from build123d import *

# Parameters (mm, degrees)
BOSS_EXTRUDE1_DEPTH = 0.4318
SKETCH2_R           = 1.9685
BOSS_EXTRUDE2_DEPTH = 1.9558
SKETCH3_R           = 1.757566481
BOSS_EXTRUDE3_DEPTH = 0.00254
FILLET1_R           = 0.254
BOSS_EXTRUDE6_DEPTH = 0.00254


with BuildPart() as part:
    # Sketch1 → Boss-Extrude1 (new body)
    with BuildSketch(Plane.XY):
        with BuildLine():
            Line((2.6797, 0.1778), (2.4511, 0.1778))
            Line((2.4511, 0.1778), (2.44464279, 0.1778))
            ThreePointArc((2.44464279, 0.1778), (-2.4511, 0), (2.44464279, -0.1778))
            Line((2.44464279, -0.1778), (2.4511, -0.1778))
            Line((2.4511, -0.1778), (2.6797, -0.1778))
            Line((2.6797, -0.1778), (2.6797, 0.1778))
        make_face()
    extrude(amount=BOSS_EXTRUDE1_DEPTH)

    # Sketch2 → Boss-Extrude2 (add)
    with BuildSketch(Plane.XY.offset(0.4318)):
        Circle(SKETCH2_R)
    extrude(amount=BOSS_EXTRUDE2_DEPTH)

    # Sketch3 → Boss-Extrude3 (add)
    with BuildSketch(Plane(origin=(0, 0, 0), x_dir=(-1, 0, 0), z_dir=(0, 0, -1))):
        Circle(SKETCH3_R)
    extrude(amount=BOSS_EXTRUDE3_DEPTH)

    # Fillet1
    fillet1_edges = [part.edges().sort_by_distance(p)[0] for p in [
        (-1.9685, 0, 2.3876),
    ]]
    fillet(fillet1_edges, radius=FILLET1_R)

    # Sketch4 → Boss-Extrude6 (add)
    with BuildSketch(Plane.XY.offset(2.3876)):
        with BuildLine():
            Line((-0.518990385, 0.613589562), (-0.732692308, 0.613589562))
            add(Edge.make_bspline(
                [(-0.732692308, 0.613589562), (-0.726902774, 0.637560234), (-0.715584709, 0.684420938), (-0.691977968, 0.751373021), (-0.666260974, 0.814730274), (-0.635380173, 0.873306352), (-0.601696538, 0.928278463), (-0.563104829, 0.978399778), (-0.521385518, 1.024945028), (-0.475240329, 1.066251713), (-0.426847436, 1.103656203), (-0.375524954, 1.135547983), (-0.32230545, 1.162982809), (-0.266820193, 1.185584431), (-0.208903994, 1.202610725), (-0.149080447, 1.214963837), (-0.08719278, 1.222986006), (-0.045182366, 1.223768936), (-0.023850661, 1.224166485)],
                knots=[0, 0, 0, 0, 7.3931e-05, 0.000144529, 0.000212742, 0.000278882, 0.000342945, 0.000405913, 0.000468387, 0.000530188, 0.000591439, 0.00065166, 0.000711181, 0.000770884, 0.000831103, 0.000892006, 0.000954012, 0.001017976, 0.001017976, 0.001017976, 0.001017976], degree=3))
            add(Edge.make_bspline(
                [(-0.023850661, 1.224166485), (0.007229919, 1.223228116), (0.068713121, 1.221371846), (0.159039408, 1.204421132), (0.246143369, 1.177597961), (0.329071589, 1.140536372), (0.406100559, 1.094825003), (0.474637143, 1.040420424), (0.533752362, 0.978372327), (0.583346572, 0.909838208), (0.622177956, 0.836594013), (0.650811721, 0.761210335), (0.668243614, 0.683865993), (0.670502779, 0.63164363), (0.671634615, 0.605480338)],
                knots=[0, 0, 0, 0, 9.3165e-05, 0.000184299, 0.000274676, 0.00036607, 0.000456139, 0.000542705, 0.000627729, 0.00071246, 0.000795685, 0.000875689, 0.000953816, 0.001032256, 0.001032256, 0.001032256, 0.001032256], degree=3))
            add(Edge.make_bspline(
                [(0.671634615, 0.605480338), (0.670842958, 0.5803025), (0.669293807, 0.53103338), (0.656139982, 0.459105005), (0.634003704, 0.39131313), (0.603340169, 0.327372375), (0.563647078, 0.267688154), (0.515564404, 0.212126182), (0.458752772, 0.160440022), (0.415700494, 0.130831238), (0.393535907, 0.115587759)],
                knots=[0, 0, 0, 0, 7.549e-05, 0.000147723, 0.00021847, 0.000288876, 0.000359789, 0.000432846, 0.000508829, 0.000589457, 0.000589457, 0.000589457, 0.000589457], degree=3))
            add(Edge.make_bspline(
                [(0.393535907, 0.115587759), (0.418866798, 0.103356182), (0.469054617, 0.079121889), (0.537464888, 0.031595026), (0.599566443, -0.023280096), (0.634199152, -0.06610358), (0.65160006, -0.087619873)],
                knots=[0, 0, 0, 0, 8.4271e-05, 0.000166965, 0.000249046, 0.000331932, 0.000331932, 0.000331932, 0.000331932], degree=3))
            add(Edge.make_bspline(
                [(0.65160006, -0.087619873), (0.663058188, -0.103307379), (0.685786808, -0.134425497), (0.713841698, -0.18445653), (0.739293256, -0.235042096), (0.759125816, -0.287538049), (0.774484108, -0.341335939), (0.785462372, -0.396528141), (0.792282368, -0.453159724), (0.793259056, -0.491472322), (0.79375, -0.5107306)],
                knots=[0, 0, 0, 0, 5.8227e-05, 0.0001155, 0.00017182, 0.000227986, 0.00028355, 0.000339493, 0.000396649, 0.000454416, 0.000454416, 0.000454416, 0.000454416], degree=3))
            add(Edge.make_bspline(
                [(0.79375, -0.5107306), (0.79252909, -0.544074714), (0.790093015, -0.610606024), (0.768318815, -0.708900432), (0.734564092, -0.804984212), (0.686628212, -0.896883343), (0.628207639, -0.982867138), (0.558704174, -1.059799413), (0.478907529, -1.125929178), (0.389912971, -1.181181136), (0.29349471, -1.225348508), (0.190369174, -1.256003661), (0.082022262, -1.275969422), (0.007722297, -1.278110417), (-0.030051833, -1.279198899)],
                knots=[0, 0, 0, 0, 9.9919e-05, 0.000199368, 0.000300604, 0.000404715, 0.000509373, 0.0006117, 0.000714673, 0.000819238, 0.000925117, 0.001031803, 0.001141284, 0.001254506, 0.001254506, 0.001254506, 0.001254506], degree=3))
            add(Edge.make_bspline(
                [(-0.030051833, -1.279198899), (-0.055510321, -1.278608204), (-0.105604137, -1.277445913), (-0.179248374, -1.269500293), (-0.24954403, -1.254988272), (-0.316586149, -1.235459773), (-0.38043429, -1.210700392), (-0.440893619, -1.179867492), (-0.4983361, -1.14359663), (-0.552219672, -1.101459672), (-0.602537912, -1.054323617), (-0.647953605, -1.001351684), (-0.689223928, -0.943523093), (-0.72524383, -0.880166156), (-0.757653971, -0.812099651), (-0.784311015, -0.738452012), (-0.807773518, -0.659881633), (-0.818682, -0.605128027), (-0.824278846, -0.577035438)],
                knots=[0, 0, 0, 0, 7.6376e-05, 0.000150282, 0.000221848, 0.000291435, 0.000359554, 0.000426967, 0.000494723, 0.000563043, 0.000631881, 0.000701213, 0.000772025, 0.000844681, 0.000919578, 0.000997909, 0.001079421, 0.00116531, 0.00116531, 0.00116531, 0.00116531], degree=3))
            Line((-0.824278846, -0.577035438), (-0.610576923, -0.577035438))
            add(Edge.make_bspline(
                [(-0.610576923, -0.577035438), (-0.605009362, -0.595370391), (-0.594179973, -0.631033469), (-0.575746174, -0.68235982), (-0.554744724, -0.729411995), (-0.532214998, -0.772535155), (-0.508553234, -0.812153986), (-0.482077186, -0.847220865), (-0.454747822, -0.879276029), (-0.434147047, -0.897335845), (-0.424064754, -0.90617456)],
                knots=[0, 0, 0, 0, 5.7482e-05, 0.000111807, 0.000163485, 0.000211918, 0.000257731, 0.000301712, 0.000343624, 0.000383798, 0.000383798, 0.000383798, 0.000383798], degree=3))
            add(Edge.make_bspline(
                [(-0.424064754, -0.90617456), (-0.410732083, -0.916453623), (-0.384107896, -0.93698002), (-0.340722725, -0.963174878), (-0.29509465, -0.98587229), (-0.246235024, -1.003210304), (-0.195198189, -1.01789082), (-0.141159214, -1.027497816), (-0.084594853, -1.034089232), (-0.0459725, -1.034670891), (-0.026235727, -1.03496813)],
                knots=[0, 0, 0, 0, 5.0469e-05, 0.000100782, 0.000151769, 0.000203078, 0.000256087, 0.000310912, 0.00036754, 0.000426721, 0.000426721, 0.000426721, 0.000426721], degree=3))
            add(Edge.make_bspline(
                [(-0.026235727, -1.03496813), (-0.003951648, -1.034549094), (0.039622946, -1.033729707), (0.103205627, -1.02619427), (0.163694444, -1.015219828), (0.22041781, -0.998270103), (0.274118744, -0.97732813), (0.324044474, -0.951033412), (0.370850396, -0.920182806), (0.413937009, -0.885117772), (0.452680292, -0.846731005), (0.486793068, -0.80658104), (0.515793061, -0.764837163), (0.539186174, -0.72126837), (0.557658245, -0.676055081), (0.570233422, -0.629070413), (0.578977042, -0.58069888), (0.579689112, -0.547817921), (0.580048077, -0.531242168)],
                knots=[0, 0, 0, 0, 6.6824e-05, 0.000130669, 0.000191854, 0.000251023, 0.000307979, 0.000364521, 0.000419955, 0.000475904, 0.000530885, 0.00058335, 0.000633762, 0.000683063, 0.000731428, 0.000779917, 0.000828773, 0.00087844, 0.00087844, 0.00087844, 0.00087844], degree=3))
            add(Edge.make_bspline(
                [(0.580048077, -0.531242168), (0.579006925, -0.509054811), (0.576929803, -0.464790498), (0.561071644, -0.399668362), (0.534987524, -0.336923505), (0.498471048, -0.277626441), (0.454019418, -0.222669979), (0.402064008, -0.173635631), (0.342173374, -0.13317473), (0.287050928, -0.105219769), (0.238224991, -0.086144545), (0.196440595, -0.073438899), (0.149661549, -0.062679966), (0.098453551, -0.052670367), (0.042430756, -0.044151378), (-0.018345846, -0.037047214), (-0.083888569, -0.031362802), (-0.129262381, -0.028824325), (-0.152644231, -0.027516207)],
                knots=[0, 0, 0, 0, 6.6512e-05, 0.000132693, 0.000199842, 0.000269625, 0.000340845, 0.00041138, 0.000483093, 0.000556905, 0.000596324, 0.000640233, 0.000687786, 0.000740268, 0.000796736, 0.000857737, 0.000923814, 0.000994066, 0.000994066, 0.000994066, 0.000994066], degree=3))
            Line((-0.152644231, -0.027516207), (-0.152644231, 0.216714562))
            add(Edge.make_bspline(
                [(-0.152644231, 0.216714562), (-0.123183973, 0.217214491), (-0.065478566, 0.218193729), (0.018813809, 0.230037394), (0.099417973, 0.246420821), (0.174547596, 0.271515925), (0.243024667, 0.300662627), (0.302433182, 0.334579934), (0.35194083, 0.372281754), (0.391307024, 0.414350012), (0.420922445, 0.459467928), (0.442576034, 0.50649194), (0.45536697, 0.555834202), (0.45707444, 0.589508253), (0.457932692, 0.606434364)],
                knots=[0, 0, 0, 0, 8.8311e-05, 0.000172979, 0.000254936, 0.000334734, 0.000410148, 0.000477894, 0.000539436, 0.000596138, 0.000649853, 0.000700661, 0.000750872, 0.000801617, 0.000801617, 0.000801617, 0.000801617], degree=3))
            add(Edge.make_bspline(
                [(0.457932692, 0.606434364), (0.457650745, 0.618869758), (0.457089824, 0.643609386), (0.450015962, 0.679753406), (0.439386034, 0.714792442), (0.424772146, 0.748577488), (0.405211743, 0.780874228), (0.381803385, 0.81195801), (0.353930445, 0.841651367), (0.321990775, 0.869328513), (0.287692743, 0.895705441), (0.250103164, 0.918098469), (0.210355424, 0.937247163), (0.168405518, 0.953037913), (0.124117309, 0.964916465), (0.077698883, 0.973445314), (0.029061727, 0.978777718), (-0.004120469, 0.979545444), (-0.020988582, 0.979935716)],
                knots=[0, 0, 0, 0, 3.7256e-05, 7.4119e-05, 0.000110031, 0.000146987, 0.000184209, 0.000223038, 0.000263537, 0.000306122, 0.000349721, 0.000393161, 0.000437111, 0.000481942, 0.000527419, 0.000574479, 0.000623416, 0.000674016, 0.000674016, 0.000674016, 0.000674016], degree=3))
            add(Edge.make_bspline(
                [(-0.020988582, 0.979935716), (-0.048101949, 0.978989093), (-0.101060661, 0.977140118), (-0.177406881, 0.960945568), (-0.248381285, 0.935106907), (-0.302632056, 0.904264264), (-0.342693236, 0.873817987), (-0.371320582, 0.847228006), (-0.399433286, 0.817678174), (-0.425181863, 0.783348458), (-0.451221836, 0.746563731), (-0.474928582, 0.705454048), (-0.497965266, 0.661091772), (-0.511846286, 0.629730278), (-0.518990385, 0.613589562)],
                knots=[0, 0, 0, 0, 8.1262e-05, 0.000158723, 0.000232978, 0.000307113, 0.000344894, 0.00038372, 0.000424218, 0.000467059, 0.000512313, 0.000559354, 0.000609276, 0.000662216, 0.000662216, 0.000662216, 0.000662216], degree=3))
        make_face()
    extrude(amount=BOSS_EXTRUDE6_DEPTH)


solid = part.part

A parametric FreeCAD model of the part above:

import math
import FreeCAD as App
import Part
import Sketcher

V = App.Vector
Q = App.Units.Quantity


def edges_at(feature, points):
    """Names of the edges that pass closest to the given points."""
    edges = feature.Shape.Edges
    near = lambda p: min(range(len(edges)), key=lambda i: edges[i].distToShape(Part.Vertex(*p))[0])
    return sorted({f"Edge{near(p) + 1}" for p in points})

doc = App.newDocument("Part")
params = doc.addObject("Spreadsheet::Sheet", "Params")
for row, (alias, value) in enumerate([
    ("sketch1_height", "0.014 in"),
    ("pad1_length", "0.017 in"),
    ("sketch2_diameter", "0.155 in"),
    ("pad2_length", "0.077 in"),
    ("pad3_length", "0.0001 in"),
    ("fillet_radius", "0.01 in"),
    ("pad4_length", "0.0001 in"),
], start=1):
    params.set(f"A{row}", alias)
    params.set(f"B{row}", "=" + value)
    params.setAlias(f"B{row}", alias)

body = doc.addObject("PartDesign::Body", "Body")

# Sketch on XY plane
sketch1 = body.newObject("Sketcher::SketchObject", "Sketch")
sketch1.AttachmentSupport = (doc.getObject("XY_Plane"), [""])
sketch1.MapMode = "FlatFace"
sketch1.addGeometry([
    Part.LineSegment(V(2.68, 0.18, 0), V(2.44, 0.18, 0)),
    Part.ArcOfCircle(Part.Circle(V(0, 0, 0), V(0, 0, 1), 2.45), math.radians(4), math.radians(356)),
    Part.LineSegment(V(2.44, -0.18, 0), V(2.68, -0.18, 0)),
    Part.LineSegment(V(2.68, -0.18, 0), V(2.68, 0.18, 0)),
], False)
sketch1.addConstraint([
    Sketcher.Constraint("Coincident", 0, 2, 1, 1),
    Sketcher.Constraint("Coincident", 1, 2, 2, 1),
    Sketcher.Constraint("Coincident", 2, 2, 3, 1),
    Sketcher.Constraint("Coincident", 3, 2, 0, 1),
    Sketcher.Constraint("Horizontal", 0),
    Sketcher.Constraint("Horizontal", 2),
    Sketcher.Constraint("Vertical", 3),
    Sketcher.Constraint("Coincident", 1, 3, -1, 1),
    Sketcher.Constraint("Vertical", 0, 2, 1, 2),
    Sketcher.Constraint("Radius", 1, Q("0.0965 in")),
    Sketcher.Constraint("DistanceY", 3, 1, 3, 2, Q("0.014 in")),
    Sketcher.Constraint("DistanceX", -1, 1, 2, 2, Q("0.1055 in")),
])
sketch1.setExpression("Constraints[10]", "Params.sketch1_height")
pad1 = body.newObject("PartDesign::Pad", "Pad")
pad1.Profile = sketch1
pad1.setExpression("Length", "Params.pad1_length")

# Sketch on XY plane
sketch2 = body.newObject("Sketcher::SketchObject", "Sketch001")
sketch2.AttachmentSupport = (doc.getObject("XY_Plane"), [""])
sketch2.MapMode = "FlatFace"
sketch2.AttachmentOffset = App.Placement(V(0, 0, 0.017 * 25.4), App.Rotation())
sketch2.addGeometry(Part.Circle(V(0, 0, 0), V(0, 0, 1), 2), False)
sketch2.addConstraint([
    Sketcher.Constraint("Coincident", 0, 3, -1, 1),
    Sketcher.Constraint("Diameter", 0, Q("0.155 in")),
])
sketch2.setExpression("Constraints[1]", "Params.sketch2_diameter")
pad2 = body.newObject("PartDesign::Pad", "Pad001")
pad2.Profile = sketch2
pad2.setExpression("Length", "Params.pad2_length")

# Sketch on XY plane
sketch3 = body.newObject("Sketcher::SketchObject", "Sketch002")
sketch3.AttachmentSupport = (doc.getObject("XY_Plane"), [""])
sketch3.MapMode = "FlatFace"
sketch3.addGeometry(Part.Circle(V(0, 0, 0), V(0, 0, 1), 1.8), False)
sketch3.addConstraint([
    Sketcher.Constraint("Coincident", 0, 3, -1, 1),
    Sketcher.Constraint("Diameter", 0, Q("3.515133 mm")),
])
pad3 = body.newObject("PartDesign::Pad", "Pad002")
pad3.Profile = sketch3
pad3.setExpression("Length", "Params.pad3_length")
pad3.Reversed = True
doc.recompute()

fillet = body.newObject("PartDesign::Fillet", "Fillet")
fillet.Base = (pad3, edges_at(pad3, [(-1.968, 0, 2.388)]))
fillet.setExpression("Radius", "Params.fillet_radius")

# Sketch on XY plane
sketch4 = body.newObject("Sketcher::SketchObject", "Sketch003")
sketch4.AttachmentSupport = (doc.getObject("XY_Plane"), [""])
sketch4.MapMode = "FlatFace"
sketch4.AttachmentOffset = App.Placement(V(0, 0, 0.094 * 25.4), App.Rotation())
sketch4.addGeometry([
    Part.LineSegment(V(-0.732692, 0.61359, 0), V(-0.51899, 0.61359, 0)),  # 0
    Part.BSplineCurve([V(-0.020989, 0.979936, 0), V(-0.048102, 0.978989, 0), V(-0.101061, 0.97714, 0), V(-0.177407, 0.960946, 0), V(-0.248381, 0.935107, 0), V(-0.302632, 0.904264, 0), V(-0.342693, 0.873818, 0), V(-0.371321, 0.847228, 0), V(-0.399433, 0.817678, 0), V(-0.425182, 0.783348, 0), V(-0.451222, 0.746564, 0), V(-0.474929, 0.705454, 0), V(-0.497965, 0.661092, 0), V(-0.511846, 0.62973, 0), V(-0.51899, 0.61359, 0)], [4, 1, 1, 1, 1, 1, 1, 1, 1, 1, 1, 1, 4], [0, 0.000081262, 0.000158723, 0.000232978, 0.000307113, 0.000344894, 0.00038372, 0.000424218, 0.000467059, 0.000512313, 0.000559354, 0.000609276, 0.000662216], False, 3, [1, 1, 1, 1, 1, 1, 1, 1, 1, 1, 1, 1, 1, 1, 1], False),  # 1
    Part.BSplineCurve([V(0.457933, 0.606434, 0), V(0.457651, 0.61887, 0), V(0.45709, 0.643609, 0), V(0.450016, 0.679753, 0), V(0.439386, 0.714792, 0), V(0.424772, 0.748577, 0), V(0.405212, 0.780874, 0), V(0.381803, 0.811958, 0), V(0.35393, 0.841651, 0), V(0.321991, 0.869329, 0), V(0.287693, 0.895705, 0), V(0.250103, 0.918098, 0), V(0.210355, 0.937247, 0), V(0.168406, 0.953038, 0), V(0.124117, 0.964916, 0), V(0.077699, 0.973445, 0), V(0.029062, 0.978778, 0), V(-0.00412, 0.979545, 0), V(-0.020989, 0.979936, 0)], [4, 1, 1, 1, 1, 1, 1, 1, 1, 1, 1, 1, 1, 1, 1, 1, 4], [0, 0.000037256, 0.000074119, 0.000110031, 0.000146987, 0.000184209, 0.000223038, 0.000263537, 0.000306122, 0.000349721, 0.000393161, 0.000437111, 0.000481942, 0.000527419, 0.000574479, 0.000623416, 0.000674016], False, 3, [1, 1, 1, 1, 1, 1, 1, 1, 1, 1, 1, 1, 1, 1, 1, 1, 1, 1, 1], False),  # 2
    Part.BSplineCurve([V(-0.152644, 0.216715, 0), V(-0.123184, 0.217214, 0), V(-0.065479, 0.218194, 0), V(0.018814, 0.230037, 0), V(0.099418, 0.246421, 0), V(0.174548, 0.271516, 0), V(0.243025, 0.300663, 0), V(0.302433, 0.33458, 0), V(0.351941, 0.372282, 0), V(0.391307, 0.41435, 0), V(0.420922, 0.459468, 0), V(0.442576, 0.506492, 0), V(0.455367, 0.555834, 0), V(0.457074, 0.589508, 0), V(0.457933, 0.606434, 0)], [4, 1, 1, 1, 1, 1, 1, 1, 1, 1, 1, 1, 4], [0, 0.000088311, 0.000172979, 0.000254936, 0.000334734, 0.000410148, 0.000477894, 0.000539436, 0.000596138, 0.000649853, 0.000700661, 0.000750872, 0.000801617], False, 3, [1, 1, 1, 1, 1, 1, 1, 1, 1, 1, 1, 1, 1, 1, 1], False),  # 3
    Part.LineSegment(V(-0.152644, 0.216715, 0), V(-0.152644, -0.027516, 0)),  # 4
    Part.BSplineCurve([V(0.580048, -0.531242, 0), V(0.579007, -0.509055, 0), V(0.57693, -0.46479, 0), V(0.561072, -0.399668, 0), V(0.534988, -0.336924, 0), V(0.498471, -0.277626, 0), V(0.454019, -0.22267, 0), V(0.402064, -0.173636, 0), V(0.342173, -0.133175, 0), V(0.287051, -0.10522, 0), V(0.238225, -0.086145, 0), V(0.196441, -0.073439, 0), V(0.149662, -0.06268, 0), V(0.098454, -0.05267, 0), V(0.042431, -0.044151, 0), V(-0.018346, -0.037047, 0), V(-0.083889, -0.031363, 0), V(-0.129262, -0.028824, 0), V(-0.152644, -0.027516, 0)], [4, 1, 1, 1, 1, 1, 1, 1, 1, 1, 1, 1, 1, 1, 1, 1, 4], [0, 0.000066512, 0.000132693, 0.000199842, 0.000269625, 0.000340845, 0.00041138, 0.000483093, 0.000556905, 0.000596324, 0.000640233, 0.000687786, 0.000740268, 0.000796736, 0.000857737, 0.000923814, 0.000994066], False, 3, [1, 1, 1, 1, 1, 1, 1, 1, 1, 1, 1, 1, 1, 1, 1, 1, 1, 1, 1], False),  # 5
    Part.BSplineCurve([V(-0.026236, -1.034968, 0), V(-0.003952, -1.034549, 0), V(0.039623, -1.03373, 0), V(0.103206, -1.026194, 0), V(0.163694, -1.01522, 0), V(0.220418, -0.99827, 0), V(0.274119, -0.977328, 0), V(0.324044, -0.951033, 0), V(0.37085, -0.920183, 0), V(0.413937, -0.885118, 0), V(0.45268, -0.846731, 0), V(0.486793, -0.806581, 0), V(0.515793, -0.764837, 0), V(0.539186, -0.721268, 0), V(0.557658, -0.676055, 0), V(0.570233, -0.62907, 0), V(0.578977, -0.580699, 0), V(0.579689, -0.547818, 0), V(0.580048, -0.531242, 0)], [4, 1, 1, 1, 1, 1, 1, 1, 1, 1, 1, 1, 1, 1, 1, 1, 4], [0, 0.000066824, 0.000130669, 0.000191854, 0.000251023, 0.000307979, 0.000364521, 0.000419955, 0.000475904, 0.000530885, 0.00058335, 0.000633762, 0.000683063, 0.000731428, 0.000779917, 0.000828773, 0.00087844], False, 3, [1, 1, 1, 1, 1, 1, 1, 1, 1, 1, 1, 1, 1, 1, 1, 1, 1, 1, 1], False),  # 6
    Part.BSplineCurve([V(-0.424065, -0.906175, 0), V(-0.410732, -0.916454, 0), V(-0.384108, -0.93698, 0), V(-0.340723, -0.963175, 0), V(-0.295095, -0.985872, 0), V(-0.246235, -1.00321, 0), V(-0.195198, -1.017891, 0), V(-0.141159, -1.027498, 0), V(-0.084595, -1.034089, 0), V(-0.045972, -1.034671, 0), V(-0.026236, -1.034968, 0)], [4, 1, 1, 1, 1, 1, 1, 1, 4], [0, 0.000050469, 0.000100782, 0.000151769, 0.000203078, 0.000256087, 0.000310912, 0.00036754, 0.000426721], False, 3, [1, 1, 1, 1, 1, 1, 1, 1, 1, 1, 1], False),  # 7
    Part.BSplineCurve([V(-0.610577, -0.577035, 0), V(-0.605009, -0.59537, 0), V(-0.59418, -0.631033, 0), V(-0.575746, -0.68236, 0), V(-0.554745, -0.729412, 0), V(-0.532215, -0.772535, 0), V(-0.508553, -0.812154, 0), V(-0.482077, -0.847221, 0), V(-0.454748, -0.879276, 0), V(-0.434147, -0.897336, 0), V(-0.424065, -0.906175, 0)], [4, 1, 1, 1, 1, 1, 1, 1, 4], [0, 0.000057482, 0.000111807, 0.000163485, 0.000211918, 0.000257731, 0.000301712, 0.000343624, 0.000383798], False, 3, [1, 1, 1, 1, 1, 1, 1, 1, 1, 1, 1], False),  # 8
    Part.LineSegment(V(-0.610577, -0.577035, 0), V(-0.824279, -0.577035, 0)),  # 9
    Part.BSplineCurve([V(-0.030052, -1.279199, 0), V(-0.05551, -1.278608, 0), V(-0.105604, -1.277446, 0), V(-0.179248, -1.2695, 0), V(-0.249544, -1.254988, 0), V(-0.316586, -1.23546, 0), V(-0.380434, -1.2107, 0), V(-0.440894, -1.179867, 0), V(-0.498336, -1.143597, 0), V(-0.55222, -1.10146, 0), V(-0.602538, -1.054324, 0), V(-0.647954, -1.001352, 0), V(-0.689224, -0.943523, 0), V(-0.725244, -0.880166, 0), V(-0.757654, -0.8121, 0), V(-0.784311, -0.738452, 0), V(-0.807774, -0.659882, 0), V(-0.818682, -0.605128, 0), V(-0.824279, -0.577035, 0)], [4, 1, 1, 1, 1, 1, 1, 1, 1, 1, 1, 1, 1, 1, 1, 1, 4], [0, 0.000076376, 0.000150282, 0.000221848, 0.000291435, 0.000359554, 0.000426967, 0.000494723, 0.000563043, 0.000631881, 0.000701213, 0.000772025, 0.000844681, 0.000919578, 0.000997909, 0.001079421, 0.00116531], False, 3, [1, 1, 1, 1, 1, 1, 1, 1, 1, 1, 1, 1, 1, 1, 1, 1, 1, 1, 1], False),  # 10
    Part.BSplineCurve([V(0.79375, -0.510731, 0), V(0.792529, -0.544075, 0), V(0.790093, -0.610606, 0), V(0.768319, -0.7089, 0), V(0.734564, -0.804984, 0), V(0.686628, -0.896883, 0), V(0.628208, -0.982867, 0), V(0.558704, -1.059799, 0), V(0.478908, -1.125929, 0), V(0.389913, -1.181181, 0), V(0.293495, -1.225349, 0), V(0.190369, -1.256004, 0), V(0.082022, -1.275969, 0), V(0.007722, -1.27811, 0), V(-0.030052, -1.279199, 0)], [4, 1, 1, 1, 1, 1, 1, 1, 1, 1, 1, 1, 4], [0, 0.000099919, 0.000199368, 0.000300604, 0.000404715, 0.000509373, 0.0006117, 0.000714673, 0.000819238, 0.000925117, 0.001031803, 0.001141284, 0.001254506], False, 3, [1, 1, 1, 1, 1, 1, 1, 1, 1, 1, 1, 1, 1, 1, 1], False),  # 11
    Part.BSplineCurve([V(0.6516, -0.08762, 0), V(0.663058, -0.103307, 0), V(0.685787, -0.134425, 0), V(0.713842, -0.184457, 0), V(0.739293, -0.235042, 0), V(0.759126, -0.287538, 0), V(0.774484, -0.341336, 0), V(0.785462, -0.396528, 0), V(0.792282, -0.45316, 0), V(0.793259, -0.491472, 0), V(0.79375, -0.510731, 0)], [4, 1, 1, 1, 1, 1, 1, 1, 4], [0, 0.000058227, 0.0001155, 0.00017182, 0.000227986, 0.00028355, 0.000339493, 0.000396649, 0.000454416], False, 3, [1, 1, 1, 1, 1, 1, 1, 1, 1, 1, 1], False),  # 12
    Part.BSplineCurve([V(0.393536, 0.115588, 0), V(0.418867, 0.103356, 0), V(0.469055, 0.079122, 0), V(0.537465, 0.031595, 0), V(0.599566, -0.02328, 0), V(0.634199, -0.066104, 0), V(0.6516, -0.08762, 0)], [4, 1, 1, 1, 4], [0, 0.000084271, 0.000166965, 0.000249046, 0.000331932], False, 3, [1, 1, 1, 1, 1, 1, 1], False),  # 13
    Part.BSplineCurve([V(0.671635, 0.60548, 0), V(0.670843, 0.580303, 0), V(0.669294, 0.531033, 0), V(0.65614, 0.459105, 0), V(0.634004, 0.391313, 0), V(0.60334, 0.327372, 0), V(0.563647, 0.267688, 0), V(0.515564, 0.212126, 0), V(0.458753, 0.16044, 0), V(0.4157, 0.130831, 0), V(0.393536, 0.115588, 0)], [4, 1, 1, 1, 1, 1, 1, 1, 4], [0, 0.00007549, 0.000147723, 0.00021847, 0.000288876, 0.000359789, 0.000432846, 0.000508829, 0.000589457], False, 3, [1, 1, 1, 1, 1, 1, 1, 1, 1, 1, 1], False),  # 14
    Part.BSplineCurve([V(-0.023851, 1.224166, 0), V(0.00723, 1.223228, 0), V(0.068713, 1.221372, 0), V(0.159039, 1.204421, 0), V(0.246143, 1.177598, 0), V(0.329072, 1.140536, 0), V(0.406101, 1.094825, 0), V(0.474637, 1.04042, 0), V(0.533752, 0.978372, 0), V(0.583347, 0.909838, 0), V(0.622178, 0.836594, 0), V(0.650812, 0.76121, 0), V(0.668244, 0.683866, 0), V(0.670503, 0.631644, 0), V(0.671635, 0.60548, 0)], [4, 1, 1, 1, 1, 1, 1, 1, 1, 1, 1, 1, 4], [0, 0.000093165, 0.000184299, 0.000274676, 0.00036607, 0.000456139, 0.000542705, 0.000627729, 0.00071246, 0.000795685, 0.000875689, 0.000953816, 0.001032256], False, 3, [1, 1, 1, 1, 1, 1, 1, 1, 1, 1, 1, 1, 1, 1, 1], False),  # 15
    Part.BSplineCurve([V(-0.732692, 0.61359, 0), V(-0.726903, 0.63756, 0), V(-0.715585, 0.684421, 0), V(-0.691978, 0.751373, 0), V(-0.666261, 0.81473, 0), V(-0.63538, 0.873306, 0), V(-0.601697, 0.928278, 0), V(-0.563105, 0.9784, 0), V(-0.521386, 1.024945, 0), V(-0.47524, 1.066252, 0), V(-0.426847, 1.103656, 0), V(-0.375525, 1.135548, 0), V(-0.322305, 1.162983, 0), V(-0.26682, 1.185584, 0), V(-0.208904, 1.202611, 0), V(-0.14908, 1.214964, 0), V(-0.087193, 1.222986, 0), V(-0.045182, 1.223769, 0), V(-0.023851, 1.224166, 0)], [4, 1, 1, 1, 1, 1, 1, 1, 1, 1, 1, 1, 1, 1, 1, 1, 4], [0, 0.000073931, 0.000144529, 0.000212742, 0.000278882, 0.000342945, 0.000405913, 0.000468387, 0.000530188, 0.000591439, 0.00065166, 0.000711181, 0.000770884, 0.000831103, 0.000892006, 0.000954012, 0.001017976], False, 3, [1, 1, 1, 1, 1, 1, 1, 1, 1, 1, 1, 1, 1, 1, 1, 1, 1, 1, 1], False),  # 16
], False)
sketch4.addConstraint([
    Sketcher.Constraint("Block", 1),
    Sketcher.Constraint("Block", 2),
    Sketcher.Constraint("Block", 3),
    Sketcher.Constraint("Block", 5),
    Sketcher.Constraint("Block", 6),
    Sketcher.Constraint("Block", 7),
    Sketcher.Constraint("Block", 8),
    Sketcher.Constraint("Block", 10),
    Sketcher.Constraint("Block", 11),
    Sketcher.Constraint("Block", 12),
    Sketcher.Constraint("Block", 13),
    Sketcher.Constraint("Block", 14),
    Sketcher.Constraint("Block", 15),
    Sketcher.Constraint("Block", 16),
    Sketcher.Constraint("Coincident", 0, 2, 1, 2),
    Sketcher.Constraint("Coincident", 3, 1, 4, 1),
    Sketcher.Constraint("Coincident", 4, 2, 5, 2),
    Sketcher.Constraint("Coincident", 8, 1, 9, 1),
    Sketcher.Constraint("Coincident", 9, 2, 10, 2),
    Sketcher.Constraint("Coincident", 16, 1, 0, 1),
])
pad4 = body.newObject("PartDesign::Pad", "Pad003")
pad4.Profile = sketch4
pad4.setExpression("Length", "Params.pad4_length")

doc.recompute()
